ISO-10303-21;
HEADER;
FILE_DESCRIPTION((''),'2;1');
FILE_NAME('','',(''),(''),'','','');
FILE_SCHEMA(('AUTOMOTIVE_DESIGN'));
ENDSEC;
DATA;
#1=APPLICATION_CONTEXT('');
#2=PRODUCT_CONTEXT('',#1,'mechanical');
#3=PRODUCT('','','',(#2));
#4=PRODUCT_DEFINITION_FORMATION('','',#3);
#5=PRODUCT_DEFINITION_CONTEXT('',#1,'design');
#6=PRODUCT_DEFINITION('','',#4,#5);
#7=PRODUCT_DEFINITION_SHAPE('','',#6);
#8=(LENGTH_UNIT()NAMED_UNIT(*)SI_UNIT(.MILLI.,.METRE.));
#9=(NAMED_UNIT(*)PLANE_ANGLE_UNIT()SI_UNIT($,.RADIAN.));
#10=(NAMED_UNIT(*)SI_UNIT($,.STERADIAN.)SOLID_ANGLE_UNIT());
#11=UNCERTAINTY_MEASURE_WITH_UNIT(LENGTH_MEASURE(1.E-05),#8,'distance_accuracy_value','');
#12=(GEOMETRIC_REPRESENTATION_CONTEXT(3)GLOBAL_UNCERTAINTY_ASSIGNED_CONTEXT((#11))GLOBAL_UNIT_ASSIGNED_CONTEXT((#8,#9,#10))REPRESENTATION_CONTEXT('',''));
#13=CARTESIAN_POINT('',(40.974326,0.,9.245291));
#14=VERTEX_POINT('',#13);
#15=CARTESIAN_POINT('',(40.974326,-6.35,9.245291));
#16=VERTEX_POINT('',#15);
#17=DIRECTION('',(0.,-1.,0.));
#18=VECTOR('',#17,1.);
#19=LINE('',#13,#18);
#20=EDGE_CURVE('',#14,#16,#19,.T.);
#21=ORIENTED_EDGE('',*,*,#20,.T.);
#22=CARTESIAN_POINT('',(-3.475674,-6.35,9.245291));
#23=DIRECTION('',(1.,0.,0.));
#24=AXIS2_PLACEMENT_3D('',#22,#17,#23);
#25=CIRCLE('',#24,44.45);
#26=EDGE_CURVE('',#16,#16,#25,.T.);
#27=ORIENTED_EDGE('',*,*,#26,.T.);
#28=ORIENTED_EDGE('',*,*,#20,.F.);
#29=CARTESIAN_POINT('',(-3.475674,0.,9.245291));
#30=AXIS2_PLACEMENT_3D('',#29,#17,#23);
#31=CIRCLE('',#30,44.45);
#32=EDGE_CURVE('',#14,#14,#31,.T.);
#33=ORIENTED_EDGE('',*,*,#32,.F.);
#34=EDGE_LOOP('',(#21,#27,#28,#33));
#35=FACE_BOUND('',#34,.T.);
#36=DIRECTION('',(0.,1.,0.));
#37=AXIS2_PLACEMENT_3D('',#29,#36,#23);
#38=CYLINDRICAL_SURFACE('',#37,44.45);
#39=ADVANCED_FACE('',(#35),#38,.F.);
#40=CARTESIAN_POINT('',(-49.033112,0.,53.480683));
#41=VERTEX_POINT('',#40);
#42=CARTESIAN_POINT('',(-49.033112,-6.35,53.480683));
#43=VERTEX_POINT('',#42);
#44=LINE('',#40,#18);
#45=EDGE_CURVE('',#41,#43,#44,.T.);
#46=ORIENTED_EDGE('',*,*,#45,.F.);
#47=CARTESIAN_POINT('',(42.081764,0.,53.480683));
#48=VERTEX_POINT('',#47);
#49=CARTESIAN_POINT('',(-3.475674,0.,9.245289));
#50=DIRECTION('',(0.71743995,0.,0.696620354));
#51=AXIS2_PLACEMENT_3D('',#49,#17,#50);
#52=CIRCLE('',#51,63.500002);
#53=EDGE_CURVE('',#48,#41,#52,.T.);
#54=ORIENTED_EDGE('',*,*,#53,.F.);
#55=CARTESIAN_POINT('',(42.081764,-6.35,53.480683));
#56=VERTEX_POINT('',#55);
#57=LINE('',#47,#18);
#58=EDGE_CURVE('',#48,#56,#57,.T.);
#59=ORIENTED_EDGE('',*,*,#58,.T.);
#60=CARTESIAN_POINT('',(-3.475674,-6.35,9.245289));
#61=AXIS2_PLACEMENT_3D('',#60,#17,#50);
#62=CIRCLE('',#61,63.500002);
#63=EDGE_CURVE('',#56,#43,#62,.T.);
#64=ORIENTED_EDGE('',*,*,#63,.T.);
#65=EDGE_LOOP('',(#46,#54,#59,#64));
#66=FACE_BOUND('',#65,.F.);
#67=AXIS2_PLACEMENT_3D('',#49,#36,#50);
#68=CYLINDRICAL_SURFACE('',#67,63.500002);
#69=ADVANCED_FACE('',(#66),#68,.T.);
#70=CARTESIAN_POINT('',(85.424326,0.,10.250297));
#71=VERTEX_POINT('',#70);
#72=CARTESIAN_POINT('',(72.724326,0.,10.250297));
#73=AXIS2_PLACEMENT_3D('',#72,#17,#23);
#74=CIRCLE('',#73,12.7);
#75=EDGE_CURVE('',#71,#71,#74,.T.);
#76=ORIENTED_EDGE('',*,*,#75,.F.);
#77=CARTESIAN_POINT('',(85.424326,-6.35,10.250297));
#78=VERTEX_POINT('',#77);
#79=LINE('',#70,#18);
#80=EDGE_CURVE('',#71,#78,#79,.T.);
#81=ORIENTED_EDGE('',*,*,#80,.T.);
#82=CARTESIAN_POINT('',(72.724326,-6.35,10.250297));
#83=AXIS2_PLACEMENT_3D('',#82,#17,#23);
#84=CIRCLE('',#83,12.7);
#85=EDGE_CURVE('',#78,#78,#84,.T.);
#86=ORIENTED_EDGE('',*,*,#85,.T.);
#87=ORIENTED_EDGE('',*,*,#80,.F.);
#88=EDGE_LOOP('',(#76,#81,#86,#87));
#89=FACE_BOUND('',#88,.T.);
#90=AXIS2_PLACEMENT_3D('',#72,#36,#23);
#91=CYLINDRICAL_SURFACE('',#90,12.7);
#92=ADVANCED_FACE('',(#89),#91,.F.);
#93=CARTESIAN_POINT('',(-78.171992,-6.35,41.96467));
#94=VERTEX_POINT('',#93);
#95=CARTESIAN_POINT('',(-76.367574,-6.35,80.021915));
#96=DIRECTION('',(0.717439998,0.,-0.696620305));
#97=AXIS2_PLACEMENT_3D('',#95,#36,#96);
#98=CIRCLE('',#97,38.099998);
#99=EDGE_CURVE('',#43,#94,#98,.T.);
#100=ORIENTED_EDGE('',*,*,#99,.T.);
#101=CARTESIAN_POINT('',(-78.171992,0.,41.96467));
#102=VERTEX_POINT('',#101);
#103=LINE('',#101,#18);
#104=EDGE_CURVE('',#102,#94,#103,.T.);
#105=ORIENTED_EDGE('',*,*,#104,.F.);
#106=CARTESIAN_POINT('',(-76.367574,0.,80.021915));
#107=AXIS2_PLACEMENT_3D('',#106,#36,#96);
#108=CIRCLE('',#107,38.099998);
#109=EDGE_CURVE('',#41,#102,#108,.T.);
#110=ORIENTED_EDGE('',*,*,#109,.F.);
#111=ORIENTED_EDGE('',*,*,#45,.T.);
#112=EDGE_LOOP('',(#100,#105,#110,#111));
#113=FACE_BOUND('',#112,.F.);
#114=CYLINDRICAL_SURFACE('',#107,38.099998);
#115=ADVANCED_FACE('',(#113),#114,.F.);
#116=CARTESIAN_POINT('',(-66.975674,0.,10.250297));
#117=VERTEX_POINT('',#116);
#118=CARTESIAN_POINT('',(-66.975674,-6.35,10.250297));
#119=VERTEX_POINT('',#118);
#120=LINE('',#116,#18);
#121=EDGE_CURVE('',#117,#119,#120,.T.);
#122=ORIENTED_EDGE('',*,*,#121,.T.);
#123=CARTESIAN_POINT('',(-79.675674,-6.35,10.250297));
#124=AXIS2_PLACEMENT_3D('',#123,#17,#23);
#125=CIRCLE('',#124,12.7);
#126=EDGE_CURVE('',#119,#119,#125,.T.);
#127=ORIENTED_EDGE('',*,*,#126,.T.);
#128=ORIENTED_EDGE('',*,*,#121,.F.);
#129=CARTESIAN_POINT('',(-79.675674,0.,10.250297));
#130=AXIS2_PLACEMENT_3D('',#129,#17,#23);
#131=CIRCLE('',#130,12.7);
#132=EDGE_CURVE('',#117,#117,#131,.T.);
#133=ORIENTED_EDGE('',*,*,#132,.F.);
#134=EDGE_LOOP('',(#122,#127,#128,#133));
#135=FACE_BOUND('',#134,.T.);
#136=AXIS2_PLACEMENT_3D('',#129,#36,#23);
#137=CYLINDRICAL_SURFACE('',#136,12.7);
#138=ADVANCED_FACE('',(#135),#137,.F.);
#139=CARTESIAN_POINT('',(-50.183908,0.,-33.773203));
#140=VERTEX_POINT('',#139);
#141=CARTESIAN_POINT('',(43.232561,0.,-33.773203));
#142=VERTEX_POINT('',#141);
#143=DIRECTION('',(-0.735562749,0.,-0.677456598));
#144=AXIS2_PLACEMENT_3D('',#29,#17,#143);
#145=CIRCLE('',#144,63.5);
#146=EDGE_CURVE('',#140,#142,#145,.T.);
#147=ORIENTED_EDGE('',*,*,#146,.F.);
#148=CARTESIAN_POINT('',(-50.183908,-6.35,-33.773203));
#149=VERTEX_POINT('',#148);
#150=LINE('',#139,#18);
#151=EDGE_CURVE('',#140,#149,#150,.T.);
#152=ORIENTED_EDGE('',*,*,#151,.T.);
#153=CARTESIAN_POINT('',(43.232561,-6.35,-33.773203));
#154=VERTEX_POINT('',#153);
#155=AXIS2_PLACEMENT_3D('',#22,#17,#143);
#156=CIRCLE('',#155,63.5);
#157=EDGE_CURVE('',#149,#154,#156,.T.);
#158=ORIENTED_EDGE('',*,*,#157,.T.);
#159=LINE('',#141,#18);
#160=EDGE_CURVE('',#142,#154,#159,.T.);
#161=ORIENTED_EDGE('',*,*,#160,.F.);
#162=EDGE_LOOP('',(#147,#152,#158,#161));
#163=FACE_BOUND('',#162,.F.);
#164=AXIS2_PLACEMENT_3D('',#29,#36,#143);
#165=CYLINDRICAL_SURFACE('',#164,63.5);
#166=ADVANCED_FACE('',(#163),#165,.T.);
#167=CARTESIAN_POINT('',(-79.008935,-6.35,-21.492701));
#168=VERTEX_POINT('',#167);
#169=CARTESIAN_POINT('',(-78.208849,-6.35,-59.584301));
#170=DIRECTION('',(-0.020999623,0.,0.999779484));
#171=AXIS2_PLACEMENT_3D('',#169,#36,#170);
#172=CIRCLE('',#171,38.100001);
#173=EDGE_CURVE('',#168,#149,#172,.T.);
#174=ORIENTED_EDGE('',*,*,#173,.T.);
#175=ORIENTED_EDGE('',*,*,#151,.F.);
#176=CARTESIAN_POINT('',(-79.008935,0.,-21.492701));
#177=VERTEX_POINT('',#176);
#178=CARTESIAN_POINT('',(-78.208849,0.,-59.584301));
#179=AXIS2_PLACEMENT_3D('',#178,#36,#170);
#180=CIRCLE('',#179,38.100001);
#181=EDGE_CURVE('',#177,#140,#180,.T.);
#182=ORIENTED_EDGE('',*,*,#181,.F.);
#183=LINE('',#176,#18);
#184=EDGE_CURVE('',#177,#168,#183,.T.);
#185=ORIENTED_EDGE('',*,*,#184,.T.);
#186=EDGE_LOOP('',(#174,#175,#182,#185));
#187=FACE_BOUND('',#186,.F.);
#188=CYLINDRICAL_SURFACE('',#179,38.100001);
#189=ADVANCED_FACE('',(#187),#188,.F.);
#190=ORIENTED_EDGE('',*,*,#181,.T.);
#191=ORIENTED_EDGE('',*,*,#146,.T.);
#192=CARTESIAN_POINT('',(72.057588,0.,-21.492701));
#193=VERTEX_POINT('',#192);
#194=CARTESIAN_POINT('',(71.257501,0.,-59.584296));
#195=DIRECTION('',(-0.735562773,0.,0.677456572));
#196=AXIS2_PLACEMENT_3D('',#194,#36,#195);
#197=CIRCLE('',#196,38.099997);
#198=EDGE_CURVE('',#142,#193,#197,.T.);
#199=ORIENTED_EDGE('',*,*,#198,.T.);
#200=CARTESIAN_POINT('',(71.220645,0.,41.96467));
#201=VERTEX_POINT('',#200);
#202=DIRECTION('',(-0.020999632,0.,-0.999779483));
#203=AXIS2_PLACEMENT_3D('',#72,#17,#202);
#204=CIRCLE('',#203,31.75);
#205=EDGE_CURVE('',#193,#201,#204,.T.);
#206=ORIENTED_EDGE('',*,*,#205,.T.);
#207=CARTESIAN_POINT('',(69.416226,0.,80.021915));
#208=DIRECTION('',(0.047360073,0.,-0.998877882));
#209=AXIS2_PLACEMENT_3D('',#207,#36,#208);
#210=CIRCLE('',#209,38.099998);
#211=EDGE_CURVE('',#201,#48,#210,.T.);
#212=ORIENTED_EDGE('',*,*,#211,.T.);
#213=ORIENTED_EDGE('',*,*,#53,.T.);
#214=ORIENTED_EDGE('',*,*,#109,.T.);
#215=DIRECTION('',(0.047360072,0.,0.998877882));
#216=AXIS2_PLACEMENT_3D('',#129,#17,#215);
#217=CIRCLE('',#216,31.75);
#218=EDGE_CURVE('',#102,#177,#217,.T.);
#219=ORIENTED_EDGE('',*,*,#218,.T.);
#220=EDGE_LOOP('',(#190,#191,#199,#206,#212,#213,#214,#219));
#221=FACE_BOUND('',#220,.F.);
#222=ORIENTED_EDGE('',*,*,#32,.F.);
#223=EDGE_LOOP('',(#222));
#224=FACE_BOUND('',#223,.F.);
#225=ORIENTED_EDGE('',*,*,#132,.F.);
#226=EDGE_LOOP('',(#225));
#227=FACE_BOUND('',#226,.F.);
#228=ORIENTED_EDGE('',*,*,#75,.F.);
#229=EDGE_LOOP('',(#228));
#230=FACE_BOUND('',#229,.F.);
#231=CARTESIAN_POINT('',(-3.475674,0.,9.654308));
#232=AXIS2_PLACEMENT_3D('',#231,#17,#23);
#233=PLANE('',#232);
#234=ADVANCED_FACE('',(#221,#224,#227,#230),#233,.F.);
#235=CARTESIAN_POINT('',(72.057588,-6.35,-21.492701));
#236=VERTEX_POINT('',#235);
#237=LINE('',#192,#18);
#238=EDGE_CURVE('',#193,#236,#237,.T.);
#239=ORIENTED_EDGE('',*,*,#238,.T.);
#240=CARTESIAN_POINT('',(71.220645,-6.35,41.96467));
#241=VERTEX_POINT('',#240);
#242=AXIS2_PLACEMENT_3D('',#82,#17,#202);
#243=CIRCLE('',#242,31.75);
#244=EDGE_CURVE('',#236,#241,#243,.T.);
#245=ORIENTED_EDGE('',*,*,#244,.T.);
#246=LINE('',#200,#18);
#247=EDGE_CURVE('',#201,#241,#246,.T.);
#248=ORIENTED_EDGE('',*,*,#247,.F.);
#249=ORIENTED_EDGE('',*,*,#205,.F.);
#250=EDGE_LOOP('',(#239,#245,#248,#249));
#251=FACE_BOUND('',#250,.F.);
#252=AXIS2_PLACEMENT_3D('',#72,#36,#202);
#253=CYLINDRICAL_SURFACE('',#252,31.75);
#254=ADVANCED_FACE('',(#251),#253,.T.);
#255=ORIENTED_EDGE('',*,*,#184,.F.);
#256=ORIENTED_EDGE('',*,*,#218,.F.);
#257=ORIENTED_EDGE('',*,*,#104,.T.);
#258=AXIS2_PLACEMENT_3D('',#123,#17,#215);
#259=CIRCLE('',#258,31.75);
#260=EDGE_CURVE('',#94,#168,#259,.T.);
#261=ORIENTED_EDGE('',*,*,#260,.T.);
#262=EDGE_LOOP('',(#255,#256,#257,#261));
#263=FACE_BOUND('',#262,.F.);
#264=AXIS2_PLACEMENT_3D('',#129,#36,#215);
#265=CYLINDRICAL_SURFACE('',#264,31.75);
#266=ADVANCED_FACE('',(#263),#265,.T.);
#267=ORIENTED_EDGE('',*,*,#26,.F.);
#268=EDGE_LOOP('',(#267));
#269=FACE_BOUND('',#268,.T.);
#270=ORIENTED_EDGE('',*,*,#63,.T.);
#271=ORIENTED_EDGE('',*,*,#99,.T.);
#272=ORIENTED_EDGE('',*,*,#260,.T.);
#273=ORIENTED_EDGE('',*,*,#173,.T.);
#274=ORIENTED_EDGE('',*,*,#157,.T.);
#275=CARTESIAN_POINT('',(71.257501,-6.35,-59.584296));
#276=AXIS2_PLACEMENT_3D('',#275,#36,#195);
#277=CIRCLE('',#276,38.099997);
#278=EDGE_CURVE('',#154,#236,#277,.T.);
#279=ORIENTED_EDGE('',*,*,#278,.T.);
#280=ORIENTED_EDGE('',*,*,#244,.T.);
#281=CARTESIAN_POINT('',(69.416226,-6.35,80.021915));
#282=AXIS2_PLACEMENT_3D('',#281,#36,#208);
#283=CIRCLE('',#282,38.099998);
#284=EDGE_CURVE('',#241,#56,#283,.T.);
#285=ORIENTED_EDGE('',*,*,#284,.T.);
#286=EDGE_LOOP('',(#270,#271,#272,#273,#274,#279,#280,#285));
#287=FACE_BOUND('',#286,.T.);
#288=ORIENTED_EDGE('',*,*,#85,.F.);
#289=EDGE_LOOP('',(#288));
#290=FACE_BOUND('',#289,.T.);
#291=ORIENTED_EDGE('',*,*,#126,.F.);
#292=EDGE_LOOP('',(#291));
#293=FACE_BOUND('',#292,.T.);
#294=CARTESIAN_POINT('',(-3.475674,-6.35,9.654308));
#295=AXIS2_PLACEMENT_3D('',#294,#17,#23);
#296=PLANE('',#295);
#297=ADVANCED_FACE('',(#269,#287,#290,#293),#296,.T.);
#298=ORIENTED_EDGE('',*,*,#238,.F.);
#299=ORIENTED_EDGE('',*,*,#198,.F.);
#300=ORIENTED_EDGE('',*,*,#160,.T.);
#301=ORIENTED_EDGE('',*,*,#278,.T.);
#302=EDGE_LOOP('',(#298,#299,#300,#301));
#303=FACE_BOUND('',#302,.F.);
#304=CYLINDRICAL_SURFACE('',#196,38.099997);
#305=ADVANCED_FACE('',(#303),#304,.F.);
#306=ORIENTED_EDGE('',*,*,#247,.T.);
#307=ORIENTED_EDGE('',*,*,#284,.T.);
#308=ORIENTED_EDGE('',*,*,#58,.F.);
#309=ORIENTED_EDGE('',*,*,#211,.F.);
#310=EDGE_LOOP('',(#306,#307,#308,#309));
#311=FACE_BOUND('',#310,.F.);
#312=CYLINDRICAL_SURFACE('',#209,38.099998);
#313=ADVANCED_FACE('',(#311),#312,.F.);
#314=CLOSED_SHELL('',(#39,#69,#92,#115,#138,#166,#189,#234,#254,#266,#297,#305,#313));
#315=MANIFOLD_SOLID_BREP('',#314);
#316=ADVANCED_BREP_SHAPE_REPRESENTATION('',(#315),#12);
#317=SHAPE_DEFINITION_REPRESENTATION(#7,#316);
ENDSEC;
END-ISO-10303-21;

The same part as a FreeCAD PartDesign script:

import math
import FreeCAD as App
import Part
import Sketcher
from FreeCAD import Vector
Q = App.Units.Quantity

doc = App.newDocument("Part")
body = doc.addObject("PartDesign::Body", "Body")

# Sketch on XZ plane
sketch1 = body.newObject("Sketcher::SketchObject", "Sketch")
sketch1.AttachmentSupport = (doc.getObject("XZ_Plane"), [""])
sketch1.MapMode = "FlatFace"
sketch1.addGeometry([
    Part.ArcOfCircle(Part.Circle(Vector(-78, -60, 0), Vector(0, 0, 1), 38), math.radians(43), math.radians(91)),  # 0
    Part.ArcOfCircle(Part.Circle(Vector(-3, 9, 0), Vector(0, 0, 1), 63), math.radians(-137), math.radians(-43)),  # 1
    Part.ArcOfCircle(Part.Circle(Vector(71, -60, 0), Vector(0, 0, 1), 38), math.radians(89), math.radians(137)),  # 2
    Part.ArcOfCircle(Part.Circle(Vector(73, 10, 0), Vector(0, 0, 1), 32), math.radians(-91), math.radians(93)),  # 3
    Part.ArcOfCircle(Part.Circle(Vector(69, 80, 0), Vector(0, 0, 1), 38), math.radians(-136), math.radians(-87)),  # 4
    Part.ArcOfCircle(Part.Circle(Vector(-3, 9, 0), Vector(0, 0, 1), 64), math.radians(44), math.radians(136)),  # 5
    Part.ArcOfCircle(Part.Circle(Vector(-76, 80, 0), Vector(0, 0, 1), 38), math.radians(-93), math.radians(-44)),  # 6
    Part.ArcOfCircle(Part.Circle(Vector(-80, 10, 0), Vector(0, 0, 1), 32), math.radians(87), math.radians(271)),  # 7
    Part.Circle(Vector(-80, 10, 0), Vector(0, 0, 1), 13),  # 8
    Part.Circle(Vector(-3, 9, 0), Vector(0, 0, 1), 44),  # 9
    Part.Circle(Vector(73, 10, 0), Vector(0, 0, 1), 13),  # 10
], False)
sketch1.addConstraint([
    Sketcher.Constraint("Tangent", 0, 1, 1, 1),
    Sketcher.Constraint("Tangent", 1, 2, 2, 2),
    Sketcher.Constraint("Tangent", 2, 1, 3, 1),
    Sketcher.Constraint("Tangent", 3, 2, 4, 2),
    Sketcher.Constraint("Tangent", 4, 1, 5, 1),
    Sketcher.Constraint("Tangent", 5, 2, 6, 2),
    Sketcher.Constraint("Tangent", 6, 1, 7, 1),
    Sketcher.Constraint("Tangent", 7, 2, 0, 2),
    Sketcher.Constraint("Coincident", 5, 3, 1, 3),
    Sketcher.Constraint("Coincident", 8, 3, 7, 3),
    Sketcher.Constraint("Coincident", 9, 3, 1, 3),
    Sketcher.Constraint("Coincident", 10, 3, 3, 3),
    Sketcher.Constraint("Equal", 2, 4),
    Sketcher.Constraint("Equal", 1, 5),
    Sketcher.Constraint("Equal", 4, 6),
    Sketcher.Constraint("Equal", 3, 7),
    Sketcher.Constraint("Equal", 8, 10),
    Sketcher.Constraint("Horizontal", 4, 3, 6, 3),
    Sketcher.Constraint("Horizontal", 3, 3, 7, 3),
    Sketcher.Constraint("Horizontal", 0, 1, 1, 2),
    Sketcher.Constraint("Diameter", 8, Q("1 in")),
    Sketcher.Constraint("Diameter", 9, Q("3.5 in")),
    Sketcher.Constraint("Radius", 0, Q("1.5 in")),
    Sketcher.Constraint("Radius", 1, Q("2.5 in")),
    Sketcher.Constraint("Radius", 3, Q("1.25 in")),
    Sketcher.Constraint("DistanceX", 1, 3, 3, 3, Q("3 in")),
    Sketcher.Constraint("DistanceX", 3, 2, 3, 3, Q("0.0592001 in")),
    Sketcher.Constraint("DistanceY", 0, 3, -1, 1, Q("59.584301 mm")),
    Sketcher.Constraint("DistanceX", -1, 1, 2, 3, Q("71.257501 mm")),
])
pad1 = body.newObject("PartDesign::Pad", "Pad")
pad1.Profile = sketch1
pad1.Length = Q("0.25 in")

doc.recompute()
